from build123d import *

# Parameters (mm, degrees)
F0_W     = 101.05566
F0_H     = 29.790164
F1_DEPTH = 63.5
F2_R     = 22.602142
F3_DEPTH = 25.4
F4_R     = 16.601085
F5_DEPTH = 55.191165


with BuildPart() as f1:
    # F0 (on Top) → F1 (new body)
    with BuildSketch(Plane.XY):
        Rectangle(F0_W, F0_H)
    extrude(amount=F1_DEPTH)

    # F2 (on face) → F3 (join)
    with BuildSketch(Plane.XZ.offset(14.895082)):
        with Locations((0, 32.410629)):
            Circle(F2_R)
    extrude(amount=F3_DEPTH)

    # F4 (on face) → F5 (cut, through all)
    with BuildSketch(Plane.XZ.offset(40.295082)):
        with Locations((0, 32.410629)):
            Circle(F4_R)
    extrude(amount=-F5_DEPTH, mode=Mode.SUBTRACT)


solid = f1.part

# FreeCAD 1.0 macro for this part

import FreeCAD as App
import Part
import Sketcher

V = App.Vector

doc = App.newDocument("Part")
params = doc.addObject("Spreadsheet::Sheet", "Params")
for row, (alias, value) in enumerate([
    ("pad1_length", "2.5 in"),
    ("pad2_length", "1 in"),
], start=1):
    params.set(f"A{row}", alias)
    params.set(f"B{row}", "=" + value)
    params.setAlias(f"B{row}", alias)

body = doc.addObject("PartDesign::Body", "Body")

# Sketch on XY plane
sketch1 = doc.addObject("Sketcher::SketchObject", "Sketch")
body.addObject(sketch1)
sketch1.AttachmentSupport = (doc.XY_Plane, [""])
sketch1.MapMode = "FlatFace"
sketch1.addGeometry([
    Part.LineSegment(V(-51, 15, 0), V(-51, -15, 0)),
    Part.LineSegment(V(-51, -15, 0), V(51, -15, 0)),
    Part.LineSegment(V(51, -15, 0), V(51, 15, 0)),
    Part.LineSegment(V(51, 15, 0), V(-51, 15, 0)),
], False)
sketch1.addConstraint([
    Sketcher.Constraint("Coincident", 0, 2, 1, 1),
    Sketcher.Constraint("Coincident", 1, 2, 2, 1),
    Sketcher.Constraint("Coincident", 2, 2, 3, 1),
    Sketcher.Constraint("Coincident", 3, 2, 0, 1),
    Sketcher.Constraint("Vertical", 0),
    Sketcher.Constraint("Horizontal", 1),
    Sketcher.Constraint("Vertical", 2),
    Sketcher.Constraint("Horizontal", 3),
    Sketcher.Constraint("Symmetric", 0, 2, 2, 2, -1, 1),
    Sketcher.Constraint("DistanceX", 1, 1, 1, 2, 101.05566),
    Sketcher.Constraint("DistanceY", 0, 2, 0, 1, 29.790164),
])
pad1 = doc.addObject("PartDesign::Pad", "Pad")
body.addObject(pad1)
pad1.Profile = sketch1
pad1.setExpression("Length", "Params.pad1_length")

# Sketch on XZ plane
sketch2 = doc.addObject("Sketcher::SketchObject", "Sketch001")
body.addObject(sketch2)
sketch2.AttachmentSupport = (doc.XZ_Plane, [""])
sketch2.MapMode = "FlatFace"
sketch2.AttachmentOffset = App.Placement(V(0, 0, 14.895082), App.Rotation())
sketch2.addGeometry(Part.Circle(V(0, 32, 0), V(0, 0, 1), 23), False)
sketch2.addConstraint([
    Sketcher.Constraint("PointOnObject", 0, 3, -2),
    Sketcher.Constraint("Diameter", 0, 45.204284),
    Sketcher.Constraint("DistanceY", -1, 1, 0, 3, 32.410629),
])
pad2 = doc.addObject("PartDesign::Pad", "Pad001")
body.addObject(pad2)
pad2.Profile = sketch2
pad2.setExpression("Length", "Params.pad2_length")

# Sketch on XZ plane
sketch3 = doc.addObject("Sketcher::SketchObject", "Sketch002")
body.addObject(sketch3)
sketch3.AttachmentSupport = (doc.XZ_Plane, [""])
sketch3.MapMode = "FlatFace"
sketch3.AttachmentOffset = App.Placement(V(0, 0, 40.295082), App.Rotation())
sketch3.addGeometry(Part.Circle(V(0, 32, 0), V(0, 0, 1), 17), False)
sketch3.addConstraint([
    Sketcher.Constraint("PointOnObject", 0, 3, -2),
    Sketcher.Constraint("Diameter", 0, 33.20217),
    Sketcher.Constraint("DistanceY", -1, 1, 0, 3, 32.410629),
])
pocket1 = doc.addObject("PartDesign::Pocket", "Pocket")
body.addObject(pocket1)
pocket1.Profile = sketch3
pocket1.Type = "ThroughAll"

doc.recompute()
